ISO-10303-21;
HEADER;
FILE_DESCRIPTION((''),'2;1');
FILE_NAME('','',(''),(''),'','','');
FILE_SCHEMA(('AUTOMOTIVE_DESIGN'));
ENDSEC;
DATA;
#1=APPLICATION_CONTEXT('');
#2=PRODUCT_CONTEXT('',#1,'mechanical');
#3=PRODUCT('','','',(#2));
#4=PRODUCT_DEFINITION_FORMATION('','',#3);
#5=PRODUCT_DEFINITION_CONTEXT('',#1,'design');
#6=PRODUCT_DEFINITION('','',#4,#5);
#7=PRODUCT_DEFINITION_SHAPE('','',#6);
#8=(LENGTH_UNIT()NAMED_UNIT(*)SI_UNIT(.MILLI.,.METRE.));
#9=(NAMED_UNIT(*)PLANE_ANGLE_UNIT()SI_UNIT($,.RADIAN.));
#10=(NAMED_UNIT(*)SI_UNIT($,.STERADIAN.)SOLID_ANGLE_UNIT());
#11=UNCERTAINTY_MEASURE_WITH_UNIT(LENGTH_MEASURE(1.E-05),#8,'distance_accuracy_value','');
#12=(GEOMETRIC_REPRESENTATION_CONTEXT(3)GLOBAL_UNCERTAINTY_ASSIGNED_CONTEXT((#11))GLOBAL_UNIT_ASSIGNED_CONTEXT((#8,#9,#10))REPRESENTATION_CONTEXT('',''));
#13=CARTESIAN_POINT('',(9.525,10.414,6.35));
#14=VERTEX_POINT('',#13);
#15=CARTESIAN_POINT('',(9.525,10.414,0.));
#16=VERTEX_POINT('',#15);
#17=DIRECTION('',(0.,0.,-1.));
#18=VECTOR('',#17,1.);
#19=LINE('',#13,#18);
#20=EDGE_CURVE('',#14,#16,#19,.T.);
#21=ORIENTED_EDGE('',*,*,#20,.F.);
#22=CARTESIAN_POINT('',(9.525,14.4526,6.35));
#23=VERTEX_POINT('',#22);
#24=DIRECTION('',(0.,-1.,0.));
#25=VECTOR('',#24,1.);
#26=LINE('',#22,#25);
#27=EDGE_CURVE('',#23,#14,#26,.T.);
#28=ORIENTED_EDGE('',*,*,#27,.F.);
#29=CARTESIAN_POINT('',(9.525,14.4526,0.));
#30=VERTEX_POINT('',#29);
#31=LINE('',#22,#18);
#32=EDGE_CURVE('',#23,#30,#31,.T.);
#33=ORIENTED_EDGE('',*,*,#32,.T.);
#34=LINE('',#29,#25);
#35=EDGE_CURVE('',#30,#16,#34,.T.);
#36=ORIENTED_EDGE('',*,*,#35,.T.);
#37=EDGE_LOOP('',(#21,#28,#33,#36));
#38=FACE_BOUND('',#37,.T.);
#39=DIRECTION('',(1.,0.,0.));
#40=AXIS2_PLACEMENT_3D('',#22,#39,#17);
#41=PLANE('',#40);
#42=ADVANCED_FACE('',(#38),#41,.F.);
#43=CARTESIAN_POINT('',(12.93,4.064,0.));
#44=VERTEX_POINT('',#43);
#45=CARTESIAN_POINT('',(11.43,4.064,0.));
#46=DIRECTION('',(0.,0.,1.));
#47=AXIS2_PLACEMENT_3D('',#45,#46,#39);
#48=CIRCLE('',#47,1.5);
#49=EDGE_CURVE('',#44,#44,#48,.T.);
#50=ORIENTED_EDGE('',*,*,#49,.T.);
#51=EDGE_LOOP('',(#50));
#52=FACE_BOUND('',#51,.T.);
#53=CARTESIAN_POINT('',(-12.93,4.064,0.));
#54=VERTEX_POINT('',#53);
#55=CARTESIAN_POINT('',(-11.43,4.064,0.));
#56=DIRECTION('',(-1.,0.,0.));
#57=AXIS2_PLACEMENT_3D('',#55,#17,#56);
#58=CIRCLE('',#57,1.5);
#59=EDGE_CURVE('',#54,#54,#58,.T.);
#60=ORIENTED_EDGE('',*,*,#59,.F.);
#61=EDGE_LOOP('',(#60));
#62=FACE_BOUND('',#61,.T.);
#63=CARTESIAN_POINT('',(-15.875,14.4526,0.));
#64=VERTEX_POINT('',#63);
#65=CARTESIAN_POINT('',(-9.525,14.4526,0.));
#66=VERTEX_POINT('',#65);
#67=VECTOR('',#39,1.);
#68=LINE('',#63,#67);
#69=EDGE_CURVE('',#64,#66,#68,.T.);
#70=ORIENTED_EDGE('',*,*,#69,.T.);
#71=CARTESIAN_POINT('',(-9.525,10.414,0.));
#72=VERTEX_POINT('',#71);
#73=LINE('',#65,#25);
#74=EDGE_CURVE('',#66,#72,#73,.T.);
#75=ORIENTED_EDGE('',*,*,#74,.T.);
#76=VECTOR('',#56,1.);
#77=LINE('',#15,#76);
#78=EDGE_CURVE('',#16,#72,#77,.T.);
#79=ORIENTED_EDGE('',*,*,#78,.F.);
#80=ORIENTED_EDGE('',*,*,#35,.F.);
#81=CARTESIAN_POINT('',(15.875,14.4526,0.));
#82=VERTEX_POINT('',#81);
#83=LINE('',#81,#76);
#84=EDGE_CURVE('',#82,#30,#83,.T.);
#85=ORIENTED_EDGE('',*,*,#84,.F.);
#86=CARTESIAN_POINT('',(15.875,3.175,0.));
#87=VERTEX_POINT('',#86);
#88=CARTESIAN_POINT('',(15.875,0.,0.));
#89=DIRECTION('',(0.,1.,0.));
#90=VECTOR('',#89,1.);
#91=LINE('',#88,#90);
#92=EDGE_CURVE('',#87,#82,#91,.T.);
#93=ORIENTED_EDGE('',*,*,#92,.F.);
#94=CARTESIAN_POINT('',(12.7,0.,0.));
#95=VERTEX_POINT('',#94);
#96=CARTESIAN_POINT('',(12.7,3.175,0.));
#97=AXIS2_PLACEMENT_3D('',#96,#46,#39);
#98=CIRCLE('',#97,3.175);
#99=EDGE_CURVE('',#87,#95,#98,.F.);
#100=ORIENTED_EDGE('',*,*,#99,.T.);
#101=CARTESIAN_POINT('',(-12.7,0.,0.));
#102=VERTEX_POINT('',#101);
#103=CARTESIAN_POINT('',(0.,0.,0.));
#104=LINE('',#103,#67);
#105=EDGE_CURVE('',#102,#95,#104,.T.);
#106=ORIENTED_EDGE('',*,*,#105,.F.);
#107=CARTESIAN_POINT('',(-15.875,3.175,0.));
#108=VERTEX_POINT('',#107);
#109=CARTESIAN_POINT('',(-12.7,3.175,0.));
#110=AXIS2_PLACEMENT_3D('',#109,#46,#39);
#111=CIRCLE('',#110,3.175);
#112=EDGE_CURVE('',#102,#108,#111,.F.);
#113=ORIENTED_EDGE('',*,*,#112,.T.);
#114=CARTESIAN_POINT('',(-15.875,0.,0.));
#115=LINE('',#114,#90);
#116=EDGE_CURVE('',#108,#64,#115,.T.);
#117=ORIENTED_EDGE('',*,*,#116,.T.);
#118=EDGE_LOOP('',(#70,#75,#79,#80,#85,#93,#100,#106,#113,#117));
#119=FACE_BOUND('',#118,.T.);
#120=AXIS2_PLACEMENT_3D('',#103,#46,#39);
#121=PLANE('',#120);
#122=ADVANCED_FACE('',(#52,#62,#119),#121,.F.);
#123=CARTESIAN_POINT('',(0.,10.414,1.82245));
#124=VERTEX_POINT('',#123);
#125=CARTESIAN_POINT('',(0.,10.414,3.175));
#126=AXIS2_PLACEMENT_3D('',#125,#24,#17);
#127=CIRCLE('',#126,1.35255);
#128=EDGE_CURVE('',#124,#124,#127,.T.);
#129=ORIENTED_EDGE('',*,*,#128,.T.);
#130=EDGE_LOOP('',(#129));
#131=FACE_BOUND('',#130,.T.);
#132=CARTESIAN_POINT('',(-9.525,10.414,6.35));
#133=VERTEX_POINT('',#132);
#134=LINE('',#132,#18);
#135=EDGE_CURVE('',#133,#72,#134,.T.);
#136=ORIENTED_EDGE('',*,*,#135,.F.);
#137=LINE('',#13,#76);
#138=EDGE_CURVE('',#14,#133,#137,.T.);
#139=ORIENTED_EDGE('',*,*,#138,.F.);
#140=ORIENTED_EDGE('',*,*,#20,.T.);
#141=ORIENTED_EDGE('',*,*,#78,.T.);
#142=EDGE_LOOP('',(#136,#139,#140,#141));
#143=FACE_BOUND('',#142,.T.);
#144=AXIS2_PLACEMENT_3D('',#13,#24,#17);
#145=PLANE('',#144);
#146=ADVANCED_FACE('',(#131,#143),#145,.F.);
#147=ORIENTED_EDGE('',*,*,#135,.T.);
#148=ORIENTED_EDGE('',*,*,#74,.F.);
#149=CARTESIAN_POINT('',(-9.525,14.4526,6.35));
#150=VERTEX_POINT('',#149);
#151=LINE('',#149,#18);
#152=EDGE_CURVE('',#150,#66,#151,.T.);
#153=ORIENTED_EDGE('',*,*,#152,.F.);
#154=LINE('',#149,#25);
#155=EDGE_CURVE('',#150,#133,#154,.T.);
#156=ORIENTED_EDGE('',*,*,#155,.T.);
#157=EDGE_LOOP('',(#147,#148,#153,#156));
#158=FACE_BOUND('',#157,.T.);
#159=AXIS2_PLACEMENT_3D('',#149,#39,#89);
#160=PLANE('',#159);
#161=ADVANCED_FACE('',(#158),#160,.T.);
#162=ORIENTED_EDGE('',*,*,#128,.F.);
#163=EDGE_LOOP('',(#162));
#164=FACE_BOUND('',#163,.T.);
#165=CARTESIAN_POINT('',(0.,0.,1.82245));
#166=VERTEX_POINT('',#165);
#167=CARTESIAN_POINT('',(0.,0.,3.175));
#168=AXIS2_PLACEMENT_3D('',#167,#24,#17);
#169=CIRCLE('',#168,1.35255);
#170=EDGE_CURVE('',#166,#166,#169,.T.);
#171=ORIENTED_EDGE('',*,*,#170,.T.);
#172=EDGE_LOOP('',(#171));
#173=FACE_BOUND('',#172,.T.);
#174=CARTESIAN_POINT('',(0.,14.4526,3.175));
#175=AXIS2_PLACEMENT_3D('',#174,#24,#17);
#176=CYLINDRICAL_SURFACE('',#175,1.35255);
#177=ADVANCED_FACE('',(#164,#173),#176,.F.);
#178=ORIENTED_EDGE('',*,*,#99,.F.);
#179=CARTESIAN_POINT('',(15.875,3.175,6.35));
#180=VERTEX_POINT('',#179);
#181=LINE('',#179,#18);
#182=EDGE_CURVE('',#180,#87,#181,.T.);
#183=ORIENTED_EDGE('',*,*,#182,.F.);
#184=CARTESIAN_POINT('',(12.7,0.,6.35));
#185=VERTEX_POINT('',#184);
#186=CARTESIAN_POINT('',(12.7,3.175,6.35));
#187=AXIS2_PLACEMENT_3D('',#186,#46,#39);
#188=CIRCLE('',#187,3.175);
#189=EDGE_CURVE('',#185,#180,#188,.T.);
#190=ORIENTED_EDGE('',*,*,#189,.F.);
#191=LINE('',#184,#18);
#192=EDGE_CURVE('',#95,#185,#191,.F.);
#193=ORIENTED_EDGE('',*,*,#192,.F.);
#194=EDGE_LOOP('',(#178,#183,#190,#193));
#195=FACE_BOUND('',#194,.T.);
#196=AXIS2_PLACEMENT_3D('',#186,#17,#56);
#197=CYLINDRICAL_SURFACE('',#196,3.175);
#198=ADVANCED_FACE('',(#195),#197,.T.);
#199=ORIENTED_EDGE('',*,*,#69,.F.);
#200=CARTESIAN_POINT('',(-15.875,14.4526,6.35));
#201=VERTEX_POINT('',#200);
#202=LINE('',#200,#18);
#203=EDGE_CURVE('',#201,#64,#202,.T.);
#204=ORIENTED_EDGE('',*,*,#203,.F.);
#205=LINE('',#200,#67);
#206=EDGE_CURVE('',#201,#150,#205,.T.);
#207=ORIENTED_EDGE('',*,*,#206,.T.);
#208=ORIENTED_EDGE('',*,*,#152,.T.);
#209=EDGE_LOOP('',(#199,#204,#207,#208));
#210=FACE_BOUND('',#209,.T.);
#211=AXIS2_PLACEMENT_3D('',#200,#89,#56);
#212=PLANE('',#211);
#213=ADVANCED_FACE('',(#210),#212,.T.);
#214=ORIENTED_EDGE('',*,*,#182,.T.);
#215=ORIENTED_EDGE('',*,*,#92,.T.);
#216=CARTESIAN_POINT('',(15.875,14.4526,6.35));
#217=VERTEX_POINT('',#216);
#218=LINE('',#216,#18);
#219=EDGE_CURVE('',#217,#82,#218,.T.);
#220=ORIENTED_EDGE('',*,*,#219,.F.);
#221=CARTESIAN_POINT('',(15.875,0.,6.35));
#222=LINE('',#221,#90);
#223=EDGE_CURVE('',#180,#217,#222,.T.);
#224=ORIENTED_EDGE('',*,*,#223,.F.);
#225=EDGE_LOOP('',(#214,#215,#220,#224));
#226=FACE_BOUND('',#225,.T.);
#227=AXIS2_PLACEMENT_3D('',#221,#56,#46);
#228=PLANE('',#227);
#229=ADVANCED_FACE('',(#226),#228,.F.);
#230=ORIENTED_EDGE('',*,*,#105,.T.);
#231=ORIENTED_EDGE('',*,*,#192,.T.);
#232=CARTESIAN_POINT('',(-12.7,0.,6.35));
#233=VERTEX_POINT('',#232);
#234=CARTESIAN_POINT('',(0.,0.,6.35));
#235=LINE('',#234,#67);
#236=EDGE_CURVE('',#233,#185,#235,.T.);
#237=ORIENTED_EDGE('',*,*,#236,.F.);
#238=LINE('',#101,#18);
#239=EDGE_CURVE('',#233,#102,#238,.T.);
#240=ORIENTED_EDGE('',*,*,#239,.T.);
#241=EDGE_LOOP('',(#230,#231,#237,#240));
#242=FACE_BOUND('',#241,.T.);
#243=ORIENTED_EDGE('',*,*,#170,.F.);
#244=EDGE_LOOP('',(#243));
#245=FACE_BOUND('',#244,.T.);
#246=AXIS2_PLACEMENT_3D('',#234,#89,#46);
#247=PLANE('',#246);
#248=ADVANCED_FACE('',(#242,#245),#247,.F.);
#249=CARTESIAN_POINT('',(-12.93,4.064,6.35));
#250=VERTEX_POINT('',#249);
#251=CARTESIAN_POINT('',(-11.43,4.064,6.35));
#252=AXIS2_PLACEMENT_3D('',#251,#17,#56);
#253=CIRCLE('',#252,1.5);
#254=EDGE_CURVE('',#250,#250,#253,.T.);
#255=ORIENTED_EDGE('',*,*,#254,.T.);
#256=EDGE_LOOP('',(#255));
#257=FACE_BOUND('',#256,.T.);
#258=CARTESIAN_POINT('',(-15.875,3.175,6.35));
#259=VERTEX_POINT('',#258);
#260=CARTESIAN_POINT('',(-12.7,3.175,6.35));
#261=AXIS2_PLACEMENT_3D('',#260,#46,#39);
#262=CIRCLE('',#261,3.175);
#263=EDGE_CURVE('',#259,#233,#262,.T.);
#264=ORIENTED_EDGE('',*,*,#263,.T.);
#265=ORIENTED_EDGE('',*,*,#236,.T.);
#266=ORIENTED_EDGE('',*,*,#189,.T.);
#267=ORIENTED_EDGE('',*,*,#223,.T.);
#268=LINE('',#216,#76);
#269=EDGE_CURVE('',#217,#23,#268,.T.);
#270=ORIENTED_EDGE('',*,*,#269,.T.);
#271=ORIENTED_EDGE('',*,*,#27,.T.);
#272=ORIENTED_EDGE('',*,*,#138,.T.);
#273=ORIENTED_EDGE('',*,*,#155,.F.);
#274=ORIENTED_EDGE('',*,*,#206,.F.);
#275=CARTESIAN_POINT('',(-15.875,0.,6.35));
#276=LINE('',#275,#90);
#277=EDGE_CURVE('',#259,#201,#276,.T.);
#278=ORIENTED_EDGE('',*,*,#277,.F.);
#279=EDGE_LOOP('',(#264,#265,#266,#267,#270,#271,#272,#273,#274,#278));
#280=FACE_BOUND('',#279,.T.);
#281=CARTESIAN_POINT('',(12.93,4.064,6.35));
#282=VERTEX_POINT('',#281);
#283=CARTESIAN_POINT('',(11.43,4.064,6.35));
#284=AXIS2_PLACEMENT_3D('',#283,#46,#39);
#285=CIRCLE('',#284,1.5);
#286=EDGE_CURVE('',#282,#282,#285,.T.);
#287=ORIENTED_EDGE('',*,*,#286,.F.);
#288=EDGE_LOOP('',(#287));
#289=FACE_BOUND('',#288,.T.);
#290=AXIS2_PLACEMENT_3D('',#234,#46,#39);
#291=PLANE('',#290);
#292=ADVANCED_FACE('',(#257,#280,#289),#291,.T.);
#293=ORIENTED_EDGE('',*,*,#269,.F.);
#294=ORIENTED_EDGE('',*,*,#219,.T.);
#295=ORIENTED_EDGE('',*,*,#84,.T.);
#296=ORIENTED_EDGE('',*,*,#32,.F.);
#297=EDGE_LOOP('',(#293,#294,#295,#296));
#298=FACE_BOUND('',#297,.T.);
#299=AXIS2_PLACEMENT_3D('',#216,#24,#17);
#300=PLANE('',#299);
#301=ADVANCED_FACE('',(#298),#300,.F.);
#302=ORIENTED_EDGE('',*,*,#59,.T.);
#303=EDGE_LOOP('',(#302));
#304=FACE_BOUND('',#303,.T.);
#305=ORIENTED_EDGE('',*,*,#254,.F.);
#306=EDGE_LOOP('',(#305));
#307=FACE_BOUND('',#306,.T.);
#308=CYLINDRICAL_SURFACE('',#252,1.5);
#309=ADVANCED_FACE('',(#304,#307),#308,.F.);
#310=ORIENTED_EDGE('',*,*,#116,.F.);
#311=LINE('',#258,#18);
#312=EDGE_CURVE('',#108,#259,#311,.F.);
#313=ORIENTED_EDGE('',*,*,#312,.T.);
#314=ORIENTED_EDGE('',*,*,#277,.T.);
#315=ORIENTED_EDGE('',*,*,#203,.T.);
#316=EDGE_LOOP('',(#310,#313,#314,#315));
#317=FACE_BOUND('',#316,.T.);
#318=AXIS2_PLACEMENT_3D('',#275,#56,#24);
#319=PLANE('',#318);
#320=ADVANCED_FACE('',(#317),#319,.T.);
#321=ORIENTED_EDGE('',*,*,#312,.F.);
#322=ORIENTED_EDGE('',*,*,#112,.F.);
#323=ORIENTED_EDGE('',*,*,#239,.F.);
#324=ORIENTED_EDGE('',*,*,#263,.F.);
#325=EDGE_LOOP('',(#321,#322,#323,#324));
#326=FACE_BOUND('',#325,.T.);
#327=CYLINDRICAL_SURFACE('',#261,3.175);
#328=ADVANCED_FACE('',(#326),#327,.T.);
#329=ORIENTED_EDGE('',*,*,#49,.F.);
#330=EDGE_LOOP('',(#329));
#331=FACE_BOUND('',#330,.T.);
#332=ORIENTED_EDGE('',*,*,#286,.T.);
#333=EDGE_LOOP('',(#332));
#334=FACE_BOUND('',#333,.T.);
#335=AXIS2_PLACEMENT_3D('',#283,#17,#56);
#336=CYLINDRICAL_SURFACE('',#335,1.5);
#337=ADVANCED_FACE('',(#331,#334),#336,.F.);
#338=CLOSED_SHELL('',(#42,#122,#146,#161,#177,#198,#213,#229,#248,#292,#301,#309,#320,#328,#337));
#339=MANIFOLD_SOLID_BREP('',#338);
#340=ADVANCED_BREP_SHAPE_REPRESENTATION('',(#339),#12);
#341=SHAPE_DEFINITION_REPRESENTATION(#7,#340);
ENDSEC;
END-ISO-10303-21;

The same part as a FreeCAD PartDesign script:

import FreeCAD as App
import Part
import Sketcher
from FreeCAD import Vector
Q = App.Units.Quantity


def edges_at(feature, points):
    """Names of the edges that pass closest to the given points."""
    edges = feature.Shape.Edges
    near = lambda p: min(range(len(edges)), key=lambda i: edges[i].distToShape(Part.Vertex(*p))[0])
    return sorted({f"Edge{near(p) + 1}" for p in points})


def add_polygon(sketch, points):
    """Adds a closed chain of lines whose ends are joined by coincident constraints."""
    first, n = sketch.GeometryCount, len(points)
    for a, b in zip(points, points[1:] + points[:1]):
        sketch.addGeometry(Part.LineSegment(App.Vector(*a, 0), App.Vector(*b, 0)), False)
    for i in range(n):
        sketch.addConstraint(Sketcher.Constraint("Coincident", first + i, 2, first + (i + 1) % n, 1))

doc = App.newDocument("Part")
body = doc.addObject("PartDesign::Body", "Body")

# Sketch on XY plane
sketch1 = doc.addObject("Sketcher::SketchObject", "Sketch")
body.addObject(sketch1)
sketch1.AttachmentSupport = (doc.XY_Plane, [""])
sketch1.MapMode = "FlatFace"
add_polygon(sketch1, [(0, 0), (15.875, 0), (15.875, 14.4526), (9.525, 14.4526), (9.525, 10.414), (0, 10.414)])  # lines 0-5
sketch1.addGeometry(Part.Circle(Vector(11.43, 4.064, 0), Vector(0, 0, 1), 1.5), False)  # 6
sketch1.addConstraint([
    Sketcher.Constraint("Horizontal", 0),
    Sketcher.Constraint("Vertical", 1),
    Sketcher.Constraint("Horizontal", 2),
    Sketcher.Constraint("Vertical", 3),
    Sketcher.Constraint("Horizontal", 4),
    Sketcher.Constraint("Vertical", 5),
    Sketcher.Constraint("Coincident", 5, 2, -1, 1),
    Sketcher.Constraint("DistanceX", 2, 2, 2, 1, Q("0.25 in")),
    Sketcher.Constraint("DistanceY", 5, 2, 5, 1, Q("0.41 in")),
    Sketcher.Constraint("Diameter", 6, 3.0),
    Sketcher.Constraint("DistanceX", 0, 1, 0, 2, Q("0.625 in")),
    Sketcher.Constraint("DistanceY", 1, 1, 1, 2, Q("0.569 in")),
    Sketcher.Constraint("DistanceX", -1, 1, 6, 3, Q("0.45 in")),
    Sketcher.Constraint("DistanceY", -1, 1, 6, 3, Q("0.16 in")),
])
pad1 = doc.addObject("PartDesign::Pad", "Pad")
body.addObject(pad1)
pad1.Profile = sketch1
pad1.Length = Q("0.25 in")
doc.recompute()

mirrored = doc.addObject("PartDesign::Mirrored", "Mirrored")
body.addObject(mirrored)
mirrored.Originals = [pad1]
mirrored.MirrorPlane = (doc.YZ_Plane, [""])
body.Tip = mirrored

# Sketch on XZ plane
sketch2 = doc.addObject("Sketcher::SketchObject", "Sketch001")
body.addObject(sketch2)
sketch2.AttachmentSupport = (doc.XZ_Plane, [""])
sketch2.MapMode = "FlatFace"
sketch2.addGeometry(Part.Circle(Vector(0, 3.175, 0), Vector(0, 0, 1), 1.35255), False)
sketch2.addConstraint([
    Sketcher.Constraint("PointOnObject", 0, 3, -2),
    Sketcher.Constraint("Diameter", 0, Q("0.1065 in")),
    Sketcher.Constraint("DistanceY", -1, 1, 0, 3, Q("0.125 in")),
])
pocket1 = doc.addObject("PartDesign::Pocket", "Pocket")
body.addObject(pocket1)
pocket1.Profile = sketch2
pocket1.Type = "ThroughAll"
doc.recompute()

fillet = doc.addObject("PartDesign::Fillet", "Fillet")
body.addObject(fillet)
fillet.Base = (pocket1, edges_at(pocket1, [(15.875, 0, 3.175), (-15.875, 0, 3.175)]))
fillet.Radius = Q("0.125 in")

doc.recompute()
